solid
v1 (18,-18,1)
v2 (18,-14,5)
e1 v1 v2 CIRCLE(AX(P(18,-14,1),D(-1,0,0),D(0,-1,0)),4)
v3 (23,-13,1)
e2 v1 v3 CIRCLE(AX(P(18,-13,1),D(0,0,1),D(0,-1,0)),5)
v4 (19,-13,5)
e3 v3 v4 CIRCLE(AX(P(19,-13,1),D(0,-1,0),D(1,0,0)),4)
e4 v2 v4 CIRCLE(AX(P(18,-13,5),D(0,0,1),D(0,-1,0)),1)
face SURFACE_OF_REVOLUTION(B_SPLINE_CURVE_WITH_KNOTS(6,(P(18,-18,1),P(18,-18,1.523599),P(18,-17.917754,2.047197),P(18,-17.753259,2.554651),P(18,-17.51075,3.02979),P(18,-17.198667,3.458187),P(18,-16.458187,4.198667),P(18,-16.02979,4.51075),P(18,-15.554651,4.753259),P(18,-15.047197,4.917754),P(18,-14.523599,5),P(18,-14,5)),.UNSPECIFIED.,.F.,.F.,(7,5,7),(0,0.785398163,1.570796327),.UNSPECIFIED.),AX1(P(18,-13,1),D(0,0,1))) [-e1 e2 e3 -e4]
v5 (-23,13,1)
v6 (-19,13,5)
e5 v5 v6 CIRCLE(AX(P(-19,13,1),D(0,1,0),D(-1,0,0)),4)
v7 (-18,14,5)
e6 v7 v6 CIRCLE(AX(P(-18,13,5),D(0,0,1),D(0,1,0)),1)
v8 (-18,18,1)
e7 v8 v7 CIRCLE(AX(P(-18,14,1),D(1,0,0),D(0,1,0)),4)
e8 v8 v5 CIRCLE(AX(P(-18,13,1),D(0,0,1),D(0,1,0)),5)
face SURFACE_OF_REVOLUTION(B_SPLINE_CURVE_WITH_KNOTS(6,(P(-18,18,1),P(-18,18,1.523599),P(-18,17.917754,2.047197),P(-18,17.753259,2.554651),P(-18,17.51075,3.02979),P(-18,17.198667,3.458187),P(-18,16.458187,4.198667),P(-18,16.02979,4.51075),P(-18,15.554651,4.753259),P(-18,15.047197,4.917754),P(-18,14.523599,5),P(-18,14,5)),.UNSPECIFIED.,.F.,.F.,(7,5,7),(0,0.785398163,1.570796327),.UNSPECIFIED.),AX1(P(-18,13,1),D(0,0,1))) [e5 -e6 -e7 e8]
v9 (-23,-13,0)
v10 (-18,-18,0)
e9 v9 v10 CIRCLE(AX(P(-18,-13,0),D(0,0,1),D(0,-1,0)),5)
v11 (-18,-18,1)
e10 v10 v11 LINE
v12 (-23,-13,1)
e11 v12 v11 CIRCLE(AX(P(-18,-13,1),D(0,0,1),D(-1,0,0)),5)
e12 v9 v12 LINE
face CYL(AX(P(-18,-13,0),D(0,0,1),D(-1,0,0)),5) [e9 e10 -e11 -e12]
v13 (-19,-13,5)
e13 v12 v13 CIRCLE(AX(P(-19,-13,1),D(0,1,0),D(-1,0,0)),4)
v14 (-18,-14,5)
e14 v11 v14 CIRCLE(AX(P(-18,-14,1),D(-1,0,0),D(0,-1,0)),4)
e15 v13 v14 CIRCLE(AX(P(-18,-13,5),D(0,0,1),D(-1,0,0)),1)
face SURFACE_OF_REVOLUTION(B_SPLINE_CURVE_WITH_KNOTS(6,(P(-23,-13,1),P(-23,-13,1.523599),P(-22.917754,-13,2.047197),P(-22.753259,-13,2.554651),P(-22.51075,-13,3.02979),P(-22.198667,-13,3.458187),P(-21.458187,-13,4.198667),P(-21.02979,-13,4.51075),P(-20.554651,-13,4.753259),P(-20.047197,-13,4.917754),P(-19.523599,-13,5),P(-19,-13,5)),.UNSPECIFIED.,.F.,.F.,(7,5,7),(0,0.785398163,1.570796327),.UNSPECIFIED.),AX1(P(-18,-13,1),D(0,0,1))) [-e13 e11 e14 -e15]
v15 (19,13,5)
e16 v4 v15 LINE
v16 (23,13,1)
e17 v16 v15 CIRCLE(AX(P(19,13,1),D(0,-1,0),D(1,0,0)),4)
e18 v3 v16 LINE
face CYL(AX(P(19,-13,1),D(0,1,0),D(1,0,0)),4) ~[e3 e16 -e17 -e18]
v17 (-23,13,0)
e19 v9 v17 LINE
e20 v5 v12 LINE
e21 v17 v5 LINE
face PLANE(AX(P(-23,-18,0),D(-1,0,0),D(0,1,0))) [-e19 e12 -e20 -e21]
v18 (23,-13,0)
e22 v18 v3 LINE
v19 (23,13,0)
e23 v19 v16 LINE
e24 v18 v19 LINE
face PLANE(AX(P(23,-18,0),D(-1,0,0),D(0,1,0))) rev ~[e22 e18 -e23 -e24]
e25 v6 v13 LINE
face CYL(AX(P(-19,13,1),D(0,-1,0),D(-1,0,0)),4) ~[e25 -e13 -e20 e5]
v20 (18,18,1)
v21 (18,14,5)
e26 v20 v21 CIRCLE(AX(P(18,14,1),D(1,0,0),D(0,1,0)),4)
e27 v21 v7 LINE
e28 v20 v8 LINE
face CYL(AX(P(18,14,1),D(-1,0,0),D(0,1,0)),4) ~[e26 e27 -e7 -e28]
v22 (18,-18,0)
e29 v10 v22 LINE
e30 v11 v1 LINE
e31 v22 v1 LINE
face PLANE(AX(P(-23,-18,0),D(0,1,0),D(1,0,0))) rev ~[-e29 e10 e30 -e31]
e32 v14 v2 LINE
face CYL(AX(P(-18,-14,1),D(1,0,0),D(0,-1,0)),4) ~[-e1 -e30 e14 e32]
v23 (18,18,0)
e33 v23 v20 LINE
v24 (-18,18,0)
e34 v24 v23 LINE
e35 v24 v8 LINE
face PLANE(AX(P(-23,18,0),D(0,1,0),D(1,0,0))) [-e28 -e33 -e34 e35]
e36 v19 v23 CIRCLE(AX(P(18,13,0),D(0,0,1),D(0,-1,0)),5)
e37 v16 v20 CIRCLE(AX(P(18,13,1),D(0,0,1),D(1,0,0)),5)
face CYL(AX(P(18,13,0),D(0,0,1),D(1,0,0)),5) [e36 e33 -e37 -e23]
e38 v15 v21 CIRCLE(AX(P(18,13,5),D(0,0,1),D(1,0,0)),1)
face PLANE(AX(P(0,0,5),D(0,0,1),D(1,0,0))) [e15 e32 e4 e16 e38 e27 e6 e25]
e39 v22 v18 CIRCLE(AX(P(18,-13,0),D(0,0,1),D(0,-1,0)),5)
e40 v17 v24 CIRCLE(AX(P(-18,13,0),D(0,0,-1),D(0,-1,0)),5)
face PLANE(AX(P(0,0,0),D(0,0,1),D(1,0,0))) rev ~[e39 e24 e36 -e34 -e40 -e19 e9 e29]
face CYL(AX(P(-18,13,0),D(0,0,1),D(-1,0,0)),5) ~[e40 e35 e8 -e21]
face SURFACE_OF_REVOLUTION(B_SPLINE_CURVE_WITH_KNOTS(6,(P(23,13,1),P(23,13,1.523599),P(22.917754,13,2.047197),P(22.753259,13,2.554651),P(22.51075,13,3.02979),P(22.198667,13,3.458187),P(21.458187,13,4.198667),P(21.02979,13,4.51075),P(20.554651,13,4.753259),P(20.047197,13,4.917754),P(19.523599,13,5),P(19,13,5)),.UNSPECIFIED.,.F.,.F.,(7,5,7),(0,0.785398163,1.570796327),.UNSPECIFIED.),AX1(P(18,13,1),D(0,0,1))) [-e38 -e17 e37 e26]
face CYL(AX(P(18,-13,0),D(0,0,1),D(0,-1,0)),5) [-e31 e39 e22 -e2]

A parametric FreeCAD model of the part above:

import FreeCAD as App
import Part
import Sketcher

V = App.Vector
Q = App.Units.Quantity


def edges_at(feature, points):
    """Names of the edges that pass closest to the given points."""
    edges = feature.Shape.Edges
    near = lambda p: min(range(len(edges)), key=lambda i: edges[i].distToShape(Part.Vertex(*p))[0])
    return sorted({f"Edge{near(p) + 1}" for p in points})


def add_polygon(sketch, points):
    """Adds a closed chain of lines whose ends are joined by coincident constraints."""
    first, n = sketch.GeometryCount, len(points)
    for a, b in zip(points, points[1:] + points[:1]):
        sketch.addGeometry(Part.LineSegment(App.Vector(*a, 0), App.Vector(*b, 0)), False)
    for i in range(n):
        sketch.addConstraint(Sketcher.Constraint("Coincident", first + i, 2, first + (i + 1) % n, 1))

doc = App.newDocument("Part")
body = doc.addObject("PartDesign::Body", "Body")

# Sketch on XY plane
sketch1 = body.newObject("Sketcher::SketchObject", "Sketch")
sketch1.AttachmentSupport = (doc.getObject("XY_Plane"), [""])
sketch1.MapMode = "FlatFace"
add_polygon(sketch1, [(-23, 18), (-23, -18), (23, -18), (23, 18)])  # lines 0-3
sketch1.addConstraint(Sketcher.Constraint("Vertical", 0))
sketch1.addConstraint(Sketcher.Constraint("Horizontal", 1))
sketch1.addConstraint(Sketcher.Constraint("Vertical", 2))
sketch1.addConstraint(Sketcher.Constraint("Horizontal", 3))
sketch1.addConstraint(Sketcher.Constraint("Symmetric", 0, 2, 2, 2, -1, 1))
sketch1.addConstraint(Sketcher.Constraint("DistanceX", 1, 1, 1, 2, Q("46 mm")))
sketch1.addConstraint(Sketcher.Constraint("DistanceY", 0, 2, 0, 1, Q("36 mm")))
pad1 = body.newObject("PartDesign::Pad", "Pad")
pad1.Profile = sketch1
pad1.Length = 5
doc.recompute()

fillet = body.newObject("PartDesign::Fillet", "Fillet")
fillet.Base = (pad1, edges_at(pad1, [(23, -18, 2.5), (23, 18, 2.5), (-23, -18, 2.5)]))
fillet.Radius = 5
doc.recompute()

fillet2 = body.newObject("PartDesign::Fillet", "Fillet001")
fillet2.Base = (fillet, edges_at(fillet, [(-23, 18, 2.5)]))
fillet2.Radius = 5
doc.recompute()

fillet3 = body.newObject("PartDesign::Fillet", "Fillet002")
fillet3.Base = (fillet2, edges_at(fillet2, [
    (-21.536, -16.536, 5),
    (21.536, -16.536, 5),
    (0, -18, 5),
    (23, 0, 5),
    (21.536, 16.536, 5),
    (0, 18, 5),
    (-21.536, 16.536, 5),
    (-23, 0, 5),
]))
fillet3.Radius = 4

doc.recompute()
